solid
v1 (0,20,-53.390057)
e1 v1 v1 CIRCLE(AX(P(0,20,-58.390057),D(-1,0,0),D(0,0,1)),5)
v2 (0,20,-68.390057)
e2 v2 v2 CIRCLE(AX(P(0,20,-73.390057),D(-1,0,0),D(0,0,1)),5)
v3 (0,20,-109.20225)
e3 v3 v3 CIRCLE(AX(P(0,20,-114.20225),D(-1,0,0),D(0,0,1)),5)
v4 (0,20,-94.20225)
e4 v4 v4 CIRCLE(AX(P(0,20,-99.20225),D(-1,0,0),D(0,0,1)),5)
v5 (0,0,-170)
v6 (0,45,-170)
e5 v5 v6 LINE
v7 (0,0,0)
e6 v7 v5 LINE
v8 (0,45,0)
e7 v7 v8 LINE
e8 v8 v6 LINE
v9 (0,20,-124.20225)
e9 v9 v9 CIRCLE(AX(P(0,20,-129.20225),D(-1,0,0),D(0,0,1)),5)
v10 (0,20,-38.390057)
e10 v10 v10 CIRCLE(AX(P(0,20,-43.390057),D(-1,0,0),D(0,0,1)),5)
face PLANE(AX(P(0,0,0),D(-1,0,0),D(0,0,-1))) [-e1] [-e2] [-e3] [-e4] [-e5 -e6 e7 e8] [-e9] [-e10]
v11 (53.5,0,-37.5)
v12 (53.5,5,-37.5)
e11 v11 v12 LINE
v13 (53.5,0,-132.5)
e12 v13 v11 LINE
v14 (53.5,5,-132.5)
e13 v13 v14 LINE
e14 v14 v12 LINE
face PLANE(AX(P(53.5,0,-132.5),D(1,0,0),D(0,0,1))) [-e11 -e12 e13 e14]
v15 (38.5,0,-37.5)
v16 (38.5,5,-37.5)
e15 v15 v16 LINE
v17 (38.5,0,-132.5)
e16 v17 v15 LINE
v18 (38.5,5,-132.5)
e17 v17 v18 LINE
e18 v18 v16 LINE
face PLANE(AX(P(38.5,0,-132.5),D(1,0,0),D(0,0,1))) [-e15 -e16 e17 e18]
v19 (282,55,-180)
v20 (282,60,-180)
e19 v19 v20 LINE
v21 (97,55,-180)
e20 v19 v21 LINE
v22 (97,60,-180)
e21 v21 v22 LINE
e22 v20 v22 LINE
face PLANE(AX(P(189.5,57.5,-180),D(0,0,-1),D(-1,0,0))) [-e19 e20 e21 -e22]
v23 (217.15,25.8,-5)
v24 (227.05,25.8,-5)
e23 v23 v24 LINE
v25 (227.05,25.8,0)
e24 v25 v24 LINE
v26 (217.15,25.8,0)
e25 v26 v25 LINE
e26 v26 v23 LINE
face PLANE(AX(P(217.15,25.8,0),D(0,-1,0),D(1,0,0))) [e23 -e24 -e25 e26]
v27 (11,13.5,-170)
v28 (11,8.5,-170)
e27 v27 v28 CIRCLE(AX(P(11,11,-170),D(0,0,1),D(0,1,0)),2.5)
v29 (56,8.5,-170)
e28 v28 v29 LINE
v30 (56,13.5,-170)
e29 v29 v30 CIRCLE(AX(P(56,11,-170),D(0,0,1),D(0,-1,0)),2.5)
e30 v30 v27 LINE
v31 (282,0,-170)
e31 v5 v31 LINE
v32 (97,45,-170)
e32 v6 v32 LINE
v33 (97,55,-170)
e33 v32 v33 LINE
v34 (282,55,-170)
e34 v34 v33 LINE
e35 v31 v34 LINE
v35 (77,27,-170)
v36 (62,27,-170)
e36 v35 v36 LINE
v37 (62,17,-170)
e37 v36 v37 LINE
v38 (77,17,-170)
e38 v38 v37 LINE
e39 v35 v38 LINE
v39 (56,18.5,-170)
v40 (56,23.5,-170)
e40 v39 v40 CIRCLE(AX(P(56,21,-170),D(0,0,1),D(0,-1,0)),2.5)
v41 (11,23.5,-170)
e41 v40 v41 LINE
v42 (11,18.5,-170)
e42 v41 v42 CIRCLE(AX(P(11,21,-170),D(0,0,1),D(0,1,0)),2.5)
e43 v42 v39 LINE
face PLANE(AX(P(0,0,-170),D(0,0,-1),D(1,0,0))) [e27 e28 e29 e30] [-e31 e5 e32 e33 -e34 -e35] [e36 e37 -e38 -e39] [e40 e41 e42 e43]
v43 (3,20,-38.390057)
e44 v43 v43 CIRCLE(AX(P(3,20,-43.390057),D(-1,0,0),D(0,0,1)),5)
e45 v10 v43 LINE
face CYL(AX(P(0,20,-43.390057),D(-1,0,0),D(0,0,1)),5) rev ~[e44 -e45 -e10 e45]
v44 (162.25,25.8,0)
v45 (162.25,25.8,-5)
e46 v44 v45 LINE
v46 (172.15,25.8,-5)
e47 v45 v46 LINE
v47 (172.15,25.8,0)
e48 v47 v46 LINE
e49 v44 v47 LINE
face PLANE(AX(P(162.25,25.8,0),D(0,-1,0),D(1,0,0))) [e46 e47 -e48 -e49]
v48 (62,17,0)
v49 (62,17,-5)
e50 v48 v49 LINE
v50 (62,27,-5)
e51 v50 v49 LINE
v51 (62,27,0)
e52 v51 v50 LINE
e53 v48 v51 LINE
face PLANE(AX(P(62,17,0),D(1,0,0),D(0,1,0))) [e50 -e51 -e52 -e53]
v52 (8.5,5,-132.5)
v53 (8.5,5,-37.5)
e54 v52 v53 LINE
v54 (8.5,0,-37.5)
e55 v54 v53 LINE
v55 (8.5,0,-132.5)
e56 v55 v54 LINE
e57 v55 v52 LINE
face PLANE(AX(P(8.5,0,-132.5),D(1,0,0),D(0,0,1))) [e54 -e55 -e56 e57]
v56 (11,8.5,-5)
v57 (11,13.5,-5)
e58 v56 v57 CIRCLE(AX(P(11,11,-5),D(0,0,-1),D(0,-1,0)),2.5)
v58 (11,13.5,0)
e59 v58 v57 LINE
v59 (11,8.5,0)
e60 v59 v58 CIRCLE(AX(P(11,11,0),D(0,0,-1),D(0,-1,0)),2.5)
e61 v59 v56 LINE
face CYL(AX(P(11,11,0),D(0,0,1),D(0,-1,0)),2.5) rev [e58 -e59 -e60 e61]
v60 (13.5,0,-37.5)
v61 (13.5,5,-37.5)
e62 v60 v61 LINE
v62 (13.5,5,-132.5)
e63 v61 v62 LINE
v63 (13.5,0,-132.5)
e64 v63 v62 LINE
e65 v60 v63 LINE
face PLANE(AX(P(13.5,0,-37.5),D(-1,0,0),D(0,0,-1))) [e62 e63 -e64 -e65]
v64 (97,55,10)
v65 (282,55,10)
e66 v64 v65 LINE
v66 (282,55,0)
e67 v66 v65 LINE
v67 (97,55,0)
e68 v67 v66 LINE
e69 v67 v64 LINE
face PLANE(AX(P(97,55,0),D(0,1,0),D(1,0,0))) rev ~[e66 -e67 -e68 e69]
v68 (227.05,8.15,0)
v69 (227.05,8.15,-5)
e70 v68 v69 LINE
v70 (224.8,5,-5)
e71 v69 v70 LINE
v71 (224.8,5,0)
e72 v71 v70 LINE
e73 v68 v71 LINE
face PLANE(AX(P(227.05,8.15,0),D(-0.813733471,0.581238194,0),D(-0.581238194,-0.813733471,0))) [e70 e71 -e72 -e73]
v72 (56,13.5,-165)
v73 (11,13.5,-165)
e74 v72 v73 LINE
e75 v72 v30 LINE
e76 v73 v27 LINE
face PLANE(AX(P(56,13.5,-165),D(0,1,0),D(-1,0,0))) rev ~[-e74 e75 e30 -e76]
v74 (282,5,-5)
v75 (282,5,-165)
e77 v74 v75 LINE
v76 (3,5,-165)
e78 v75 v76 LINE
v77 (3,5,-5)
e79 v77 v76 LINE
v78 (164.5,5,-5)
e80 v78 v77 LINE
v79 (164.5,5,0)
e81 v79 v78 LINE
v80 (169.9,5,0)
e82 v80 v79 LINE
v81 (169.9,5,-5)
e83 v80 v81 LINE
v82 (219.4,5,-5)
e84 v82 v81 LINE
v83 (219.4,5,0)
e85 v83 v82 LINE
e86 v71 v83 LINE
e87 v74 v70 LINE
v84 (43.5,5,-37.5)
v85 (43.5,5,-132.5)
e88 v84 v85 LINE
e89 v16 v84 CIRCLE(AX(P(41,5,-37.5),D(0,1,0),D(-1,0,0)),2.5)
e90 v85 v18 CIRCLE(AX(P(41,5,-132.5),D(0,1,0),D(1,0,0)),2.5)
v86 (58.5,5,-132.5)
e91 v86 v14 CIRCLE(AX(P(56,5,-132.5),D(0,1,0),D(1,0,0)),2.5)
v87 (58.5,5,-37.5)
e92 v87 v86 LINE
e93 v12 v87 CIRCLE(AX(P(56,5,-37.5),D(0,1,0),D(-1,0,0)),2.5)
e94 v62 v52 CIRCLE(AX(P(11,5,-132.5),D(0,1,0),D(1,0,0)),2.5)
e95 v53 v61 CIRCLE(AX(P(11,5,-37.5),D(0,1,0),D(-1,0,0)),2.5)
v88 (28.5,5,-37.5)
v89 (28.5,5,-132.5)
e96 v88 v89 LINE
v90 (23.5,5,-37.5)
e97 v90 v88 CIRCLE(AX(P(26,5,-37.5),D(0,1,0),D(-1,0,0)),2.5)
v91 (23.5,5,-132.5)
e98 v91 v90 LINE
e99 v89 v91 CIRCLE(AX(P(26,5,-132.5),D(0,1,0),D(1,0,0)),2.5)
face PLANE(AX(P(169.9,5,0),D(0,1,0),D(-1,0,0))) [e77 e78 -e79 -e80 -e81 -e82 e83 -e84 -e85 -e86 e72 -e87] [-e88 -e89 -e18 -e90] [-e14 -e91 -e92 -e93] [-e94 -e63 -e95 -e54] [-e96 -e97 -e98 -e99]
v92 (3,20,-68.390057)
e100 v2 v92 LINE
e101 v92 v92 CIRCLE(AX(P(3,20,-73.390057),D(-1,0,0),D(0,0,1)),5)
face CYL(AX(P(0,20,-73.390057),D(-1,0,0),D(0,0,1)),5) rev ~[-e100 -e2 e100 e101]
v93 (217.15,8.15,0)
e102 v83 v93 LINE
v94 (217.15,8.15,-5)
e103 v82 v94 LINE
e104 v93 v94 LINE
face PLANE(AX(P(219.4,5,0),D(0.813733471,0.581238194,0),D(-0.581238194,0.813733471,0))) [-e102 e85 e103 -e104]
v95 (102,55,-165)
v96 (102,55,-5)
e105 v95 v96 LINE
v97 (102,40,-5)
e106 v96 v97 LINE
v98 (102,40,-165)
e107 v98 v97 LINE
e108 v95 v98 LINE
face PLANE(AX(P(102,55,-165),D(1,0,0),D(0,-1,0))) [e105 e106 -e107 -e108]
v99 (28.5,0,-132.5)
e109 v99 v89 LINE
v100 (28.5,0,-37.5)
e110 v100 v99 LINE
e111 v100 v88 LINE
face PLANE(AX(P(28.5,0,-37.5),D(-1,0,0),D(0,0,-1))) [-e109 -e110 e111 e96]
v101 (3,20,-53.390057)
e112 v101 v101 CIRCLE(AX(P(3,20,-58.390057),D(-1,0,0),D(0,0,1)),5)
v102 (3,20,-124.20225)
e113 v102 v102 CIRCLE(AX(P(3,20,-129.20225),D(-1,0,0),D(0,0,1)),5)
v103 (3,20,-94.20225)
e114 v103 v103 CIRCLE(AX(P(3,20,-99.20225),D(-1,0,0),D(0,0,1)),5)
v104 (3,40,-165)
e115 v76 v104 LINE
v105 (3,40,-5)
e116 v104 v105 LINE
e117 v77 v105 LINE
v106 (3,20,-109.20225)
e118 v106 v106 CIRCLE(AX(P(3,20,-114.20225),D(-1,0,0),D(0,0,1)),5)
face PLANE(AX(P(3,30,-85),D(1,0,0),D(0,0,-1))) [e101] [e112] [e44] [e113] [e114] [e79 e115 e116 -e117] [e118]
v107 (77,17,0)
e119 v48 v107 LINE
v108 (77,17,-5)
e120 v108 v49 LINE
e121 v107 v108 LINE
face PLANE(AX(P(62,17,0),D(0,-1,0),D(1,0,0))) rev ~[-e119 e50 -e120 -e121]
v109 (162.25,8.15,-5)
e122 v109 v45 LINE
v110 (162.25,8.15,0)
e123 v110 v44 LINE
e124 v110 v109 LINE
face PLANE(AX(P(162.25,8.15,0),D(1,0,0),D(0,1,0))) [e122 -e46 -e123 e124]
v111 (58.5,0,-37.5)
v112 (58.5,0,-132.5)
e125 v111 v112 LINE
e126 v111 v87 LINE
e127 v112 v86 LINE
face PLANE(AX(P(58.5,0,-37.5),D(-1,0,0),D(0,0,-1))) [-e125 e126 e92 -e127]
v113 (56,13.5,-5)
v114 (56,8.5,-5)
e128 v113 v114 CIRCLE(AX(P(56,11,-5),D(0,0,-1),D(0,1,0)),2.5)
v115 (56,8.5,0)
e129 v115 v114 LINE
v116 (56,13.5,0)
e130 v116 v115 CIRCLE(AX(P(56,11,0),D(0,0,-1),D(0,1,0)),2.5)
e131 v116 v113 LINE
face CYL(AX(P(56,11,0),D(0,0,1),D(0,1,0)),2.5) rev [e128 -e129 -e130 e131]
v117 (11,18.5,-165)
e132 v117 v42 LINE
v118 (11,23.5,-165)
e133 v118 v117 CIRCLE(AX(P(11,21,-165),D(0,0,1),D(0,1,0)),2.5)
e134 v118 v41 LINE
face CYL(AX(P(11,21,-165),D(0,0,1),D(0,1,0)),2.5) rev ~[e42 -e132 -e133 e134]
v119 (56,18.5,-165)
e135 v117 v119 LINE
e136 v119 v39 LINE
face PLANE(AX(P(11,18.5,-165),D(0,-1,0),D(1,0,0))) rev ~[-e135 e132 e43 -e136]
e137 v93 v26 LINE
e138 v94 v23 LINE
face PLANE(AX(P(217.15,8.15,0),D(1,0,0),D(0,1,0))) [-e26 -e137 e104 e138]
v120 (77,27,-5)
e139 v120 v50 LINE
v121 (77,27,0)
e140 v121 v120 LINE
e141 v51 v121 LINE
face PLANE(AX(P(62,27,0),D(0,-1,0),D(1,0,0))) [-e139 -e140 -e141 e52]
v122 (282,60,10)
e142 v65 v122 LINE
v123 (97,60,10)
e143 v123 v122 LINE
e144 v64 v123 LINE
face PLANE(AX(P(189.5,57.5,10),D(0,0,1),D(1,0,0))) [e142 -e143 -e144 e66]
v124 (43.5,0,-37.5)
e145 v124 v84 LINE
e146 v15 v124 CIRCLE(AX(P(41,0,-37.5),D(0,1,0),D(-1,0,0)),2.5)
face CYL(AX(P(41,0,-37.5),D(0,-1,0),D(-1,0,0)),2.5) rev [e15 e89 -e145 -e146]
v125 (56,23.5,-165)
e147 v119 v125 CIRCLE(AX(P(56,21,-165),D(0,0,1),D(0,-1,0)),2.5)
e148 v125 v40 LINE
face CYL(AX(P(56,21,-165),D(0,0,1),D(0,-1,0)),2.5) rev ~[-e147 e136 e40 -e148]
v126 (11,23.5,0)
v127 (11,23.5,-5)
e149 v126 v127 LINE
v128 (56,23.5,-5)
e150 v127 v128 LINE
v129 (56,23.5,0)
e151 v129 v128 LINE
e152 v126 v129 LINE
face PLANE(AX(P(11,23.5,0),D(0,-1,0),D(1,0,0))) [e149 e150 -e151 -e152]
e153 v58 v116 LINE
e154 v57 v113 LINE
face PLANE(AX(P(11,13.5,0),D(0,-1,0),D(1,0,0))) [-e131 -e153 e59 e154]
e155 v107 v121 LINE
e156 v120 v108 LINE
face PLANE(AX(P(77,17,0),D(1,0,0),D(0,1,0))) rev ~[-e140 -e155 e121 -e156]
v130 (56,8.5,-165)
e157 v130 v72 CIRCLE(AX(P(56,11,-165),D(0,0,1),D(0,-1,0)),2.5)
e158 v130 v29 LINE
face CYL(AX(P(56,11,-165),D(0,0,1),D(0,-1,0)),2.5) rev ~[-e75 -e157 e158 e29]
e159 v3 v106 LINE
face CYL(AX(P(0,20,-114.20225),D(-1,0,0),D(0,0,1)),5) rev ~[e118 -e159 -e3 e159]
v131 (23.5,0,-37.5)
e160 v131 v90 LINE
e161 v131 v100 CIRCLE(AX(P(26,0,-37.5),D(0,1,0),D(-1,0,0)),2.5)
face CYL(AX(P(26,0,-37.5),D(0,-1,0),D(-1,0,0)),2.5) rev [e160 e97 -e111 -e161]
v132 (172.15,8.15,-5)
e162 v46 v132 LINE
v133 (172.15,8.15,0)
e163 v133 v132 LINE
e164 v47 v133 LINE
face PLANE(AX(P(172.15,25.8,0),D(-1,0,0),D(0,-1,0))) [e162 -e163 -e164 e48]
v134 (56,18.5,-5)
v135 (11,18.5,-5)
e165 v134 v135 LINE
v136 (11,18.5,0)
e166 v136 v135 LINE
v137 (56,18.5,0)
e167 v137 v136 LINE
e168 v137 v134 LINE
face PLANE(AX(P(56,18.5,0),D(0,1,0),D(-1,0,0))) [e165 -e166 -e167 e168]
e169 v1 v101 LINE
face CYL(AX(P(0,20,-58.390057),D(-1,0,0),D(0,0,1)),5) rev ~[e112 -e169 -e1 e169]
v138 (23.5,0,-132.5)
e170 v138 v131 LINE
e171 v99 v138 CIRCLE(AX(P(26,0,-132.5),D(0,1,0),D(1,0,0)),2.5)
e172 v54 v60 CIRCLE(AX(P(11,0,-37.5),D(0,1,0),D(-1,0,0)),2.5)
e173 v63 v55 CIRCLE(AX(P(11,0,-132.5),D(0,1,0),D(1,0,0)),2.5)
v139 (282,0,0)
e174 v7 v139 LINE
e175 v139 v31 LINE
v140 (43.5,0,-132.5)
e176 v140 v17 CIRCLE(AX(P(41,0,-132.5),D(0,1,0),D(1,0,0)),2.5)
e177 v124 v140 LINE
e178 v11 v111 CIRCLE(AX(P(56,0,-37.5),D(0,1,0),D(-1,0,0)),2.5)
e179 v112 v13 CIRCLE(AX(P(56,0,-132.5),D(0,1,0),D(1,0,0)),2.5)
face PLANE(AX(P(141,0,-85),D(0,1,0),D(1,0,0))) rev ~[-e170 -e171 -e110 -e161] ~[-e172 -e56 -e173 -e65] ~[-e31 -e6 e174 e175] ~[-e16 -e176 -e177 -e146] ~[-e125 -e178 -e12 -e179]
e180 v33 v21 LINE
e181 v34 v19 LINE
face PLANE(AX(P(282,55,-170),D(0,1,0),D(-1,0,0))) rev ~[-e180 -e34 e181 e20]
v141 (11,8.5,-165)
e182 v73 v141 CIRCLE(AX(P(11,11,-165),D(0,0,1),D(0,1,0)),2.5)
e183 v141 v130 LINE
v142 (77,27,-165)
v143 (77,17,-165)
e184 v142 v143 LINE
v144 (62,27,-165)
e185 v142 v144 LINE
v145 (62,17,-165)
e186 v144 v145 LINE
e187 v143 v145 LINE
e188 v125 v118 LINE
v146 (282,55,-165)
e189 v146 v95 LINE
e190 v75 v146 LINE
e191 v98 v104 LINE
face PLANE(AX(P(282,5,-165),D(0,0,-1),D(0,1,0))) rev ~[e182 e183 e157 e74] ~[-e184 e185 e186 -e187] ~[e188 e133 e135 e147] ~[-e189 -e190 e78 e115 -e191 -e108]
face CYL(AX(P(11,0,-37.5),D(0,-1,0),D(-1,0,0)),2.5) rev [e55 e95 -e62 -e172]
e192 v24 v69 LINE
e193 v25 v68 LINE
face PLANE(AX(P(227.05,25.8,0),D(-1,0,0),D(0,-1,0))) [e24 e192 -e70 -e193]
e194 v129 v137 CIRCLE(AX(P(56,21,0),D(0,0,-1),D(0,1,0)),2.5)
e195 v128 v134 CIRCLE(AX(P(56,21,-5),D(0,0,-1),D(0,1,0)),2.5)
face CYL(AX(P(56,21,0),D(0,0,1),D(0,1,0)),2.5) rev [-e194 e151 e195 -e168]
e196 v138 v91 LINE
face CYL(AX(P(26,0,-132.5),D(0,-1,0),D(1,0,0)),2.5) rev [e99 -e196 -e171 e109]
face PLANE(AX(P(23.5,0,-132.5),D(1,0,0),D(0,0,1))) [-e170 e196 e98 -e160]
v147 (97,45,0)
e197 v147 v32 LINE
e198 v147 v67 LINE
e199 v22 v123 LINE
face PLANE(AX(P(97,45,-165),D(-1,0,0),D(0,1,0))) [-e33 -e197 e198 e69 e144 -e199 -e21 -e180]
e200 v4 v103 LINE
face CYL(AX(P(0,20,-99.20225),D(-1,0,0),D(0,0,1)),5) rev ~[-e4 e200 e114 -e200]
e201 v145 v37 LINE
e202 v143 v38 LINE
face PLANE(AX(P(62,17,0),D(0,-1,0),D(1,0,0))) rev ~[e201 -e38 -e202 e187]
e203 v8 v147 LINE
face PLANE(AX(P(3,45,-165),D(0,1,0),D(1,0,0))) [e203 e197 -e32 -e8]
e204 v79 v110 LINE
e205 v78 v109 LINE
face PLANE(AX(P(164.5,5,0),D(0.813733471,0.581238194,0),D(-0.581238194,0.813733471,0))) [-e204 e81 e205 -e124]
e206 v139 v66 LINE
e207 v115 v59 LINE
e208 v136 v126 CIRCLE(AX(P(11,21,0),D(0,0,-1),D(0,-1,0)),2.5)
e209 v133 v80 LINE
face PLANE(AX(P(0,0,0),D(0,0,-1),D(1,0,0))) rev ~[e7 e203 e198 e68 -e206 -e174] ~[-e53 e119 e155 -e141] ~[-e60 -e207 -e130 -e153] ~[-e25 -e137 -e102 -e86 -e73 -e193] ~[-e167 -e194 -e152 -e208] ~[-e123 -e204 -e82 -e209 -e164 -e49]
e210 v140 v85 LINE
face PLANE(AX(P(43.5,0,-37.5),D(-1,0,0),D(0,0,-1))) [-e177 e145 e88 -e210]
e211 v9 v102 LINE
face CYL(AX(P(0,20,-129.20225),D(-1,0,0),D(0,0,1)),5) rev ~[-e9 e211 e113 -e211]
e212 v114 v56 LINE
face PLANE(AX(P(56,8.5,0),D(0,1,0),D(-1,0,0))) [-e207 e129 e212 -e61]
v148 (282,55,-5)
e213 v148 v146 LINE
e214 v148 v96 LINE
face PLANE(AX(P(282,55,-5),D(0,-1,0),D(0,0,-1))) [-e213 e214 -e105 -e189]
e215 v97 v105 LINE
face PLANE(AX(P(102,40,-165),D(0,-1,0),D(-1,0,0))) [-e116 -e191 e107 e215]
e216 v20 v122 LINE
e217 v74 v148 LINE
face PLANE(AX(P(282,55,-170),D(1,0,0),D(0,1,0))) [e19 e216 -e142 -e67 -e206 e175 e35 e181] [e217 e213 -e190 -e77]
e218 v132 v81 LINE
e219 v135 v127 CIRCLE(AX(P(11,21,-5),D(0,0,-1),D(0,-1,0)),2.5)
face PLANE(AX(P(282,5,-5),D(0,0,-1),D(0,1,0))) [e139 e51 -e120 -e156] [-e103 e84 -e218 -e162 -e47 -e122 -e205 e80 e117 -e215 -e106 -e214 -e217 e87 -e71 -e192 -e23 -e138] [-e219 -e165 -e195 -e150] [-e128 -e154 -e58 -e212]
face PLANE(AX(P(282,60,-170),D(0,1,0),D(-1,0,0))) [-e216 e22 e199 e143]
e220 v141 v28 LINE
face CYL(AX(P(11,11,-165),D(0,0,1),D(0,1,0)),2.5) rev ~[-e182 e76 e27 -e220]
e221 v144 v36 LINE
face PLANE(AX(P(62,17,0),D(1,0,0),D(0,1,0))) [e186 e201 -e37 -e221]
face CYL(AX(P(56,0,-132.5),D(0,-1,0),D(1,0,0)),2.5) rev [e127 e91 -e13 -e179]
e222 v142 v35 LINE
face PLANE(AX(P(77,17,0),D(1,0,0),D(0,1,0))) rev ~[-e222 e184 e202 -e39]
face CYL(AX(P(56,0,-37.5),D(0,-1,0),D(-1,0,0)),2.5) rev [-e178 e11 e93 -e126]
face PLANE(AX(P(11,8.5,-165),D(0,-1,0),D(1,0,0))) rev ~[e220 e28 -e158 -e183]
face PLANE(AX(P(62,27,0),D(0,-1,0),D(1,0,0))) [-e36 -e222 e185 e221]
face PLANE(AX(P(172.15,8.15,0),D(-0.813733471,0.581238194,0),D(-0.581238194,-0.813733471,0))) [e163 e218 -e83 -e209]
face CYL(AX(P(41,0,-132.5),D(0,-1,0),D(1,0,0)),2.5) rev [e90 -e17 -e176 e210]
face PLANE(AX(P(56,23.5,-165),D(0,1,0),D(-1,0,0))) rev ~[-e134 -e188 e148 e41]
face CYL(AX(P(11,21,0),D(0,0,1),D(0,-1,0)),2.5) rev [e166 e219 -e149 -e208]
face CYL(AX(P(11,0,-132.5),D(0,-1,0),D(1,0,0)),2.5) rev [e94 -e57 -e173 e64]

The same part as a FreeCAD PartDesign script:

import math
import FreeCAD as App
import Part
import Sketcher
from FreeCAD import Vector
Q = App.Units.Quantity

doc = App.newDocument("Part")
body = doc.addObject("PartDesign::Body", "Body")

sketch1 = body.newObject("Sketcher::SketchObject", "Sketch")
sketch1.AttachmentSupport = (doc.getObject("XZ_Plane"), [""])
sketch1.MapMode = "FlatFace"
sketch1.addGeometry(Part.LineSegment(Vector(0, -170, 0), Vector(0, 0, 0)), False)
sketch1.addGeometry(Part.LineSegment(Vector(0, 0, 0), Vector(282, 0, 0)), False)
sketch1.addGeometry(Part.LineSegment(Vector(282, 0, 0), Vector(282, -170, 0)), False)
sketch1.addGeometry(Part.LineSegment(Vector(282, -170, 0), Vector(0, -170, 0)), False)
sketch1.addConstraint(Sketcher.Constraint("Coincident", 0, 2, 1, 1))
sketch1.addConstraint(Sketcher.Constraint("Coincident", 1, 2, 2, 1))
sketch1.addConstraint(Sketcher.Constraint("Coincident", 2, 2, 3, 1))
sketch1.addConstraint(Sketcher.Constraint("Coincident", 3, 2, 0, 1))
sketch1.addConstraint(Sketcher.Constraint("Vertical", 0))
sketch1.addConstraint(Sketcher.Constraint("Horizontal", 1))
sketch1.addConstraint(Sketcher.Constraint("Vertical", 2))
sketch1.addConstraint(Sketcher.Constraint("Horizontal", 3))
sketch1.addConstraint(Sketcher.Constraint("Coincident", 0, 2, -1, 1))
sketch1.addConstraint(Sketcher.Constraint("DistanceX", 1, 1, 1, 2, Q("282 mm")))
sketch1.addConstraint(Sketcher.Constraint("DistanceY", 0, 1, 0, 2, Q("170 mm")))
pad1 = body.newObject("PartDesign::Pad", "Pad")
pad1.Profile = sketch1
pad1.Length = 60
pad1.Reversed = True

sketch2 = body.newObject("Sketcher::SketchObject", "Sketch001")
sketch2.AttachmentSupport = (doc.getObject("XZ_Plane"), [""])
sketch2.MapMode = "FlatFace"
sketch2.addGeometry(Part.LineSegment(Vector(13.5, -132.5, 0), Vector(13.5, -37.5, 0)), False)
sketch2.addGeometry(Part.ArcOfCircle(Part.Circle(Vector(11, -37.5, 0), Vector(0, 0, 1), 2.5), math.radians(0), math.radians(180)), False)
sketch2.addGeometry(Part.LineSegment(Vector(8.5, -37.5, 0), Vector(8.5, -132.5, 0)), False)
sketch2.addGeometry(Part.ArcOfCircle(Part.Circle(Vector(11, -132.5, 0), Vector(0, 0, 1), 2.5), math.radians(180), math.radians(360)), False)
sketch2.addGeometry(Part.LineSegment(Vector(58.5, -132.5, 0), Vector(58.5, -37.5, 0)), False)
sketch2.addGeometry(Part.ArcOfCircle(Part.Circle(Vector(56, -37.5, 0), Vector(0, 0, 1), 2.5), math.radians(0), math.radians(180)), False)
sketch2.addGeometry(Part.LineSegment(Vector(53.5, -37.5, 0), Vector(53.5, -132.5, 0)), False)
sketch2.addGeometry(Part.ArcOfCircle(Part.Circle(Vector(56, -132.5, 0), Vector(0, 0, 1), 2.5), math.radians(180), math.radians(360)), False)
sketch2.addGeometry(Part.LineSegment(Vector(28.5, -132.5, 0), Vector(28.5, -37.5, 0)), False)
sketch2.addGeometry(Part.ArcOfCircle(Part.Circle(Vector(26, -37.5, 0), Vector(0, 0, 1), 2.5), math.radians(0), math.radians(180)), False)
sketch2.addGeometry(Part.LineSegment(Vector(23.5, -37.5, 0), Vector(23.5, -132.5, 0)), False)
sketch2.addGeometry(Part.ArcOfCircle(Part.Circle(Vector(26, -132.5, 0), Vector(0, 0, 1), 2.5), math.radians(180), math.radians(360)), False)
sketch2.addGeometry(Part.LineSegment(Vector(43.5, -132.5, 0), Vector(43.5, -37.5, 0)), False)
sketch2.addGeometry(Part.ArcOfCircle(Part.Circle(Vector(41, -37.5, 0), Vector(0, 0, 1), 2.5), math.radians(0), math.radians(180)), False)
sketch2.addGeometry(Part.LineSegment(Vector(38.5, -37.5, 0), Vector(38.5, -132.5, 0)), False)
sketch2.addGeometry(Part.ArcOfCircle(Part.Circle(Vector(41, -132.5, 0), Vector(0, 0, 1), 2.5), math.radians(180), math.radians(360)), False)
sketch2.addConstraint(Sketcher.Constraint("Tangent", 0, 2, 1, 1))
sketch2.addConstraint(Sketcher.Constraint("Tangent", 1, 2, 2, 1))
sketch2.addConstraint(Sketcher.Constraint("Tangent", 2, 2, 3, 1))
sketch2.addConstraint(Sketcher.Constraint("Tangent", 3, 2, 0, 1))
sketch2.addConstraint(Sketcher.Constraint("Tangent", 4, 2, 5, 1))
sketch2.addConstraint(Sketcher.Constraint("Tangent", 5, 2, 6, 1))
sketch2.addConstraint(Sketcher.Constraint("Tangent", 6, 2, 7, 1))
sketch2.addConstraint(Sketcher.Constraint("Tangent", 7, 2, 4, 1))
sketch2.addConstraint(Sketcher.Constraint("Tangent", 8, 2, 9, 1))
sketch2.addConstraint(Sketcher.Constraint("Tangent", 9, 2, 10, 1))
sketch2.addConstraint(Sketcher.Constraint("Tangent", 10, 2, 11, 1))
sketch2.addConstraint(Sketcher.Constraint("Tangent", 11, 2, 8, 1))
sketch2.addConstraint(Sketcher.Constraint("Tangent", 12, 2, 13, 1))
sketch2.addConstraint(Sketcher.Constraint("Tangent", 13, 2, 14, 1))
sketch2.addConstraint(Sketcher.Constraint("Tangent", 14, 2, 15, 1))
sketch2.addConstraint(Sketcher.Constraint("Tangent", 15, 2, 12, 1))
sketch2.addConstraint(Sketcher.Constraint("Vertical", 0))
sketch2.addConstraint(Sketcher.Constraint("Vertical", 2))
sketch2.addConstraint(Sketcher.Constraint("Vertical", 4))
sketch2.addConstraint(Sketcher.Constraint("Vertical", 6))
sketch2.addConstraint(Sketcher.Constraint("Vertical", 8))
sketch2.addConstraint(Sketcher.Constraint("Vertical", 10))
sketch2.addConstraint(Sketcher.Constraint("Vertical", 12))
sketch2.addConstraint(Sketcher.Constraint("Vertical", 14))
sketch2.addConstraint(Sketcher.Constraint("Equal", 3, 5))
sketch2.addConstraint(Sketcher.Constraint("Equal", 7, 9))
sketch2.addConstraint(Sketcher.Constraint("Equal", 11, 13))
sketch2.addConstraint(Sketcher.Constraint("Horizontal", 1, 3, 5, 3))
sketch2.addConstraint(Sketcher.Constraint("Horizontal", 3, 3, 7, 3))
sketch2.addConstraint(Sketcher.Constraint("Horizontal", 5, 3, 9, 3))
sketch2.addConstraint(Sketcher.Constraint("Horizontal", 7, 3, 11, 3))
sketch2.addConstraint(Sketcher.Constraint("Horizontal", 9, 3, 13, 3))
sketch2.addConstraint(Sketcher.Constraint("Horizontal", 11, 3, 15, 3))
sketch2.addConstraint(Sketcher.Constraint("Radius", 1, Q("2.5 mm")))
sketch2.addConstraint(Sketcher.Constraint("DistanceY", 0, 1, 0, 2, Q("95 mm")))
sketch2.addConstraint(Sketcher.Constraint("DistanceX", -1, 1, 1, 3, Q("11 mm")))
sketch2.addConstraint(Sketcher.Constraint("DistanceX", -1, 1, 5, 3, Q("56 mm")))
sketch2.addConstraint(Sketcher.Constraint("DistanceX", -1, 1, 9, 3, Q("26 mm")))
sketch2.addConstraint(Sketcher.Constraint("DistanceX", -1, 1, 13, 3, Q("41 mm")))
sketch2.addConstraint(Sketcher.Constraint("DistanceY", 1, 3, -1, 1, Q("37.5 mm")))
pocket1 = body.newObject("PartDesign::Pocket", "Pocket")
pocket1.Profile = sketch2
pocket1.Length = 5

sketch3 = body.newObject("Sketcher::SketchObject", "Sketch002")
sketch3.AttachmentSupport = (doc.getObject("YZ_Plane"), [""])
sketch3.MapMode = "FlatFace"
sketch3.AttachmentOffset = App.Placement(Vector(0, 0, 282), App.Rotation())
sketch3.addGeometry(Part.LineSegment(Vector(55, -5, 0), Vector(5, -5, 0)), False)
sketch3.addGeometry(Part.LineSegment(Vector(5, -5, 0), Vector(5, -165, 0)), False)
sketch3.addGeometry(Part.LineSegment(Vector(5, -165, 0), Vector(55, -165, 0)), False)
sketch3.addGeometry(Part.LineSegment(Vector(55, -165, 0), Vector(55, -5, 0)), False)
sketch3.addConstraint(Sketcher.Constraint("Coincident", 0, 2, 1, 1))
sketch3.addConstraint(Sketcher.Constraint("Coincident", 1, 2, 2, 1))
sketch3.addConstraint(Sketcher.Constraint("Coincident", 2, 2, 3, 1))
sketch3.addConstraint(Sketcher.Constraint("Coincident", 3, 2, 0, 1))
sketch3.addConstraint(Sketcher.Constraint("Horizontal", 0))
sketch3.addConstraint(Sketcher.Constraint("Vertical", 1))
sketch3.addConstraint(Sketcher.Constraint("Horizontal", 2))
sketch3.addConstraint(Sketcher.Constraint("Vertical", 3))
sketch3.addConstraint(Sketcher.Constraint("DistanceX", 0, 2, 0, 1, Q("50 mm")))
sketch3.addConstraint(Sketcher.Constraint("DistanceY", 1, 2, 1, 1, Q("160 mm")))
sketch3.addConstraint(Sketcher.Constraint("DistanceX", -1, 1, 0, 2, Q("5 mm")))
sketch3.addConstraint(Sketcher.Constraint("DistanceY", 0, 2, -1, 1, Q("5 mm")))
pocket2 = body.newObject("PartDesign::Pocket", "Pocket001")
pocket2.Profile = sketch3
pocket2.Length = 279

sketch4 = body.newObject("Sketcher::SketchObject", "Sketch003")
sketch4.AttachmentSupport = (doc.getObject("XY_Plane"), [""])
sketch4.MapMode = "FlatFace"
sketch4.addGeometry(Part.LineSegment(Vector(227.1, 25.8, 0), Vector(217.2, 25.8, 0)), False)
sketch4.addGeometry(Part.LineSegment(Vector(217.2, 25.8, 0), Vector(217.2, 8.2, 0)), False)
sketch4.addGeometry(Part.LineSegment(Vector(217.2, 8.2, 0), Vector(219.4, 5, 0)), False)
sketch4.addGeometry(Part.LineSegment(Vector(219.4, 5, 0), Vector(224.8, 5, 0)), False)
sketch4.addGeometry(Part.LineSegment(Vector(224.8, 5, 0), Vector(227.1, 8.2, 0)), False)
sketch4.addGeometry(Part.LineSegment(Vector(227.1, 8.2, 0), Vector(227.1, 25.8, 0)), False)
sketch4.addGeometry(Part.LineSegment(Vector(172.2, 25.8, 0), Vector(162.2, 25.8, 0)), False)
sketch4.addGeometry(Part.LineSegment(Vector(162.2, 25.8, 0), Vector(162.2, 8.2, 0)), False)
sketch4.addGeometry(Part.LineSegment(Vector(162.2, 8.2, 0), Vector(164.5, 5, 0)), False)
sketch4.addGeometry(Part.LineSegment(Vector(164.5, 5, 0), Vector(169.9, 5, 0)), False)
sketch4.addGeometry(Part.LineSegment(Vector(169.9, 5, 0), Vector(172.2, 8.2, 0)), False)
sketch4.addGeometry(Part.LineSegment(Vector(172.2, 8.2, 0), Vector(172.2, 25.8, 0)), False)
sketch4.addConstraint(Sketcher.Constraint("Coincident", 0, 2, 1, 1))
sketch4.addConstraint(Sketcher.Constraint("Coincident", 1, 2, 2, 1))
sketch4.addConstraint(Sketcher.Constraint("Coincident", 2, 2, 3, 1))
sketch4.addConstraint(Sketcher.Constraint("Coincident", 3, 2, 4, 1))
sketch4.addConstraint(Sketcher.Constraint("Coincident", 4, 2, 5, 1))
sketch4.addConstraint(Sketcher.Constraint("Coincident", 5, 2, 0, 1))
sketch4.addConstraint(Sketcher.Constraint("Coincident", 6, 2, 7, 1))
sketch4.addConstraint(Sketcher.Constraint("Coincident", 7, 2, 8, 1))
sketch4.addConstraint(Sketcher.Constraint("Coincident", 8, 2, 9, 1))
sketch4.addConstraint(Sketcher.Constraint("Coincident", 9, 2, 10, 1))
sketch4.addConstraint(Sketcher.Constraint("Coincident", 10, 2, 11, 1))
sketch4.addConstraint(Sketcher.Constraint("Coincident", 11, 2, 6, 1))
sketch4.addConstraint(Sketcher.Constraint("Horizontal", 0))
sketch4.addConstraint(Sketcher.Constraint("Vertical", 1))
sketch4.addConstraint(Sketcher.Constraint("Horizontal", 3))
sketch4.addConstraint(Sketcher.Constraint("Vertical", 5))
sketch4.addConstraint(Sketcher.Constraint("Horizontal", 6))
sketch4.addConstraint(Sketcher.Constraint("Vertical", 7))
sketch4.addConstraint(Sketcher.Constraint("Horizontal", 9))
sketch4.addConstraint(Sketcher.Constraint("Vertical", 11))
sketch4.addConstraint(Sketcher.Constraint("Parallel", 2, 8))
sketch4.addConstraint(Sketcher.Constraint("Parallel", 4, 10))
sketch4.addConstraint(Sketcher.Constraint("Horizontal", 1, 2, 4, 2))
sketch4.addConstraint(Sketcher.Constraint("Horizontal", 5, 2, 6, 2))
sketch4.addConstraint(Sketcher.Constraint("Horizontal", 4, 2, 7, 2))
sketch4.addConstraint(Sketcher.Constraint("Horizontal", 3, 2, 8, 2))
sketch4.addConstraint(Sketcher.Constraint("Horizontal", 7, 2, 10, 2))
sketch4.addConstraint(Sketcher.Constraint("Equal", 0, 6))
sketch4.addConstraint(Sketcher.Constraint("Equal", 2, 4))
sketch4.addConstraint(Sketcher.Constraint("DistanceX", 0, 2, 0, 1, Q("9.9 mm")))
sketch4.addConstraint(Sketcher.Constraint("DistanceX", 3, 1, 3, 2, Q("5.4 mm")))
sketch4.addConstraint(Sketcher.Constraint("DistanceY", -1, 1, 2, 2, Q("5 mm")))
sketch4.addConstraint(Sketcher.Constraint("DistanceX", 10, 2, 1, 2, Q("45 mm")))
sketch4.addConstraint(Sketcher.Constraint("DistanceY", 1, 2, 1, 1, Q("17.65 mm")))
sketch4.addConstraint(Sketcher.Constraint("DistanceY", -1, 1, 0, 2, Q("25.8 mm")))
sketch4.addConstraint(Sketcher.Constraint("DistanceX", -1, 1, 2, 2, Q("219.4 mm")))
pocket3 = body.newObject("PartDesign::Pocket", "Pocket002")
pocket3.Profile = sketch4
pocket3.Length = 5

sketch5 = body.newObject("Sketcher::SketchObject", "Sketch004")
sketch5.AttachmentSupport = (doc.getObject("YZ_Plane"), [""])
sketch5.MapMode = "FlatFace"
sketch5.addGeometry(Part.Circle(Vector(20, -129, 0), Vector(0, 0, 1), 5), False)
sketch5.addGeometry(Part.Circle(Vector(20, -114, 0), Vector(0, 0, 1), 5), False)
sketch5.addGeometry(Part.Circle(Vector(20, -99, 0), Vector(0, 0, 1), 5), False)
sketch5.addGeometry(Part.Circle(Vector(20, -43, 0), Vector(0, 0, 1), 5), False)
sketch5.addGeometry(Part.Circle(Vector(20, -58, 0), Vector(0, 0, 1), 5), False)
sketch5.addGeometry(Part.Circle(Vector(20, -73, 0), Vector(0, 0, 1), 5), False)
sketch5.addConstraint(Sketcher.Constraint("Equal", 0, 1))
sketch5.addConstraint(Sketcher.Constraint("Equal", 1, 2))
sketch5.addConstraint(Sketcher.Constraint("Equal", 2, 3))
sketch5.addConstraint(Sketcher.Constraint("Equal", 3, 4))
sketch5.addConstraint(Sketcher.Constraint("Equal", 4, 5))
sketch5.addConstraint(Sketcher.Constraint("Vertical", 0, 3, 1, 3))
sketch5.addConstraint(Sketcher.Constraint("Vertical", 1, 3, 2, 3))
sketch5.addConstraint(Sketcher.Constraint("Vertical", 2, 3, 3, 3))
sketch5.addConstraint(Sketcher.Constraint("Vertical", 3, 3, 4, 3))
sketch5.addConstraint(Sketcher.Constraint("Vertical", 4, 3, 5, 3))
sketch5.addConstraint(Sketcher.Constraint("Diameter", 0, Q("10 mm")))
sketch5.addConstraint(Sketcher.Constraint("DistanceX", -1, 1, 0, 3, Q("20 mm")))
sketch5.addConstraint(Sketcher.Constraint("DistanceY", 0, 3, 1, 3, Q("15 mm")))
sketch5.addConstraint(Sketcher.Constraint("DistanceY", 1, 3, 2, 3, Q("15 mm")))
sketch5.addConstraint(Sketcher.Constraint("DistanceY", 4, 3, 3, 3, Q("15 mm")))
sketch5.addConstraint(Sketcher.Constraint("DistanceY", 5, 3, 4, 3, Q("15 mm")))
sketch5.addConstraint(Sketcher.Constraint("DistanceY", 0, 3, -1, 1, Q("129.20225 mm")))
sketch5.addConstraint(Sketcher.Constraint("DistanceY", 3, 3, -1, 1, Q("43.390057 mm")))
pocket4 = body.newObject("PartDesign::Pocket", "Pocket003")
pocket4.Profile = sketch5
pocket4.Length = 5
pocket4.Reversed = True

sketch6 = body.newObject("Sketcher::SketchObject", "Sketch005")
sketch6.AttachmentSupport = (doc.getObject("XY_Plane"), [""])
sketch6.MapMode = "FlatFace"
sketch6.addGeometry(Part.LineSegment(Vector(56, 13.5, 0), Vector(11, 13.5, 0)), False)
sketch6.addGeometry(Part.ArcOfCircle(Part.Circle(Vector(11, 11, 0), Vector(0, 0, 1), 2.5), math.radians(90), math.radians(270)), False)
sketch6.addGeometry(Part.LineSegment(Vector(11, 8.5, 0), Vector(56, 8.5, 0)), False)
sketch6.addGeometry(Part.ArcOfCircle(Part.Circle(Vector(56, 11, 0), Vector(0, 0, 1), 2.5), math.radians(-90), math.radians(90)), False)
sketch6.addGeometry(Part.LineSegment(Vector(56, 23.5, 0), Vector(11, 23.5, 0)), False)
sketch6.addGeometry(Part.ArcOfCircle(Part.Circle(Vector(11, 21, 0), Vector(0, 0, 1), 2.5), math.radians(90), math.radians(270)), False)
sketch6.addGeometry(Part.LineSegment(Vector(11, 18.5, 0), Vector(56, 18.5, 0)), False)
sketch6.addGeometry(Part.ArcOfCircle(Part.Circle(Vector(56, 21, 0), Vector(0, 0, 1), 2.5), math.radians(-90), math.radians(90)), False)
sketch6.addConstraint(Sketcher.Constraint("Tangent", 0, 2, 1, 1))
sketch6.addConstraint(Sketcher.Constraint("Tangent", 1, 2, 2, 1))
sketch6.addConstraint(Sketcher.Constraint("Tangent", 2, 2, 3, 1))
sketch6.addConstraint(Sketcher.Constraint("Tangent", 3, 2, 0, 1))
sketch6.addConstraint(Sketcher.Constraint("Tangent", 4, 2, 5, 1))
sketch6.addConstraint(Sketcher.Constraint("Tangent", 5, 2, 6, 1))
sketch6.addConstraint(Sketcher.Constraint("Tangent", 6, 2, 7, 1))
sketch6.addConstraint(Sketcher.Constraint("Tangent", 7, 2, 4, 1))
sketch6.addConstraint(Sketcher.Constraint("Horizontal", 0))
sketch6.addConstraint(Sketcher.Constraint("Horizontal", 2))
sketch6.addConstraint(Sketcher.Constraint("Horizontal", 4))
sketch6.addConstraint(Sketcher.Constraint("Horizontal", 6))
sketch6.addConstraint(Sketcher.Constraint("Equal", 3, 5))
sketch6.addConstraint(Sketcher.Constraint("Vertical", 1, 3, 5, 3))
sketch6.addConstraint(Sketcher.Constraint("Vertical", 3, 3, 7, 3))
sketch6.addConstraint(Sketcher.Constraint("Radius", 1, Q("2.5 mm")))
sketch6.addConstraint(Sketcher.Constraint("DistanceX", 0, 2, 0, 1, Q("45 mm")))
sketch6.addConstraint(Sketcher.Constraint("DistanceX", -1, 1, 1, 3, Q("11 mm")))
sketch6.addConstraint(Sketcher.Constraint("DistanceY", -1, 1, 1, 3, Q("11 mm")))
sketch6.addConstraint(Sketcher.Constraint("DistanceY", -1, 1, 5, 3, Q("21 mm")))
pocket5 = body.newObject("PartDesign::Pocket", "Pocket004")
pocket5.Profile = sketch6
pocket5.Length = 5

sketch7 = body.newObject("Sketcher::SketchObject", "Sketch006")
sketch7.AttachmentSupport = (doc.getObject("XY_Plane"), [""])
sketch7.MapMode = "FlatFace"
sketch7.AttachmentOffset = App.Placement(Vector(0, 0, -165), App.Rotation())
sketch7.addGeometry(Part.LineSegment(Vector(11, 13.5, 0), Vector(56, 13.5, 0)), False)
sketch7.addGeometry(Part.ArcOfCircle(Part.Circle(Vector(56, 11, 0), Vector(0, 0, 1), 2.5), math.radians(-90), math.radians(90)), False)
sketch7.addGeometry(Part.LineSegment(Vector(56, 8.5, 0), Vector(11, 8.5, 0)), False)
sketch7.addGeometry(Part.ArcOfCircle(Part.Circle(Vector(11, 11, 0), Vector(0, 0, 1), 2.5), math.radians(90), math.radians(270)), False)
sketch7.addGeometry(Part.LineSegment(Vector(11, 23.5, 0), Vector(56, 23.5, 0)), False)
sketch7.addGeometry(Part.ArcOfCircle(Part.Circle(Vector(56, 21, 0), Vector(0, 0, 1), 2.5), math.radians(-90), math.radians(90)), False)
sketch7.addGeometry(Part.LineSegment(Vector(56, 18.5, 0), Vector(11, 18.5, 0)), False)
sketch7.addGeometry(Part.ArcOfCircle(Part.Circle(Vector(11, 21, 0), Vector(0, 0, 1), 2.5), math.radians(90), math.radians(270)), False)
sketch7.addConstraint(Sketcher.Constraint("Tangent", 0, 2, 1, 2))
sketch7.addConstraint(Sketcher.Constraint("Tangent", 1, 1, 2, 1))
sketch7.addConstraint(Sketcher.Constraint("Tangent", 2, 2, 3, 2))
sketch7.addConstraint(Sketcher.Constraint("Tangent", 3, 1, 0, 1))
sketch7.addConstraint(Sketcher.Constraint("Tangent", 4, 2, 5, 2))
sketch7.addConstraint(Sketcher.Constraint("Tangent", 5, 1, 6, 1))
sketch7.addConstraint(Sketcher.Constraint("Tangent", 6, 2, 7, 2))
sketch7.addConstraint(Sketcher.Constraint("Tangent", 7, 1, 4, 1))
sketch7.addConstraint(Sketcher.Constraint("Horizontal", 0))
sketch7.addConstraint(Sketcher.Constraint("Horizontal", 2))
sketch7.addConstraint(Sketcher.Constraint("Horizontal", 4))
sketch7.addConstraint(Sketcher.Constraint("Horizontal", 6))
sketch7.addConstraint(Sketcher.Constraint("Equal", 3, 5))
sketch7.addConstraint(Sketcher.Constraint("Vertical", 1, 3, 5, 3))
sketch7.addConstraint(Sketcher.Constraint("Vertical", 3, 3, 7, 3))
sketch7.addConstraint(Sketcher.Constraint("Radius", 1, Q("2.5 mm")))
sketch7.addConstraint(Sketcher.Constraint("DistanceX", 0, 1, 0, 2, Q("45 mm")))
sketch7.addConstraint(Sketcher.Constraint("DistanceX", -1, 1, 1, 3, Q("56 mm")))
sketch7.addConstraint(Sketcher.Constraint("DistanceY", -1, 1, 1, 3, Q("11 mm")))
sketch7.addConstraint(Sketcher.Constraint("DistanceY", -1, 1, 5, 3, Q("21 mm")))
pocket6 = body.newObject("PartDesign::Pocket", "Pocket005")
pocket6.Profile = sketch7
pocket6.Length = 5

sketch8 = body.newObject("Sketcher::SketchObject", "Sketch007")
sketch8.AttachmentSupport = (doc.getObject("XY_Plane"), [""])
sketch8.MapMode = "FlatFace"
sketch8.addGeometry(Part.LineSegment(Vector(97, 60, 0), Vector(97, 55, 0)), False)
sketch8.addGeometry(Part.LineSegment(Vector(97, 55, 0), Vector(282, 55, 0)), False)
sketch8.addGeometry(Part.LineSegment(Vector(282, 55, 0), Vector(282, 60, 0)), False)
sketch8.addGeometry(Part.LineSegment(Vector(282, 60, 0), Vector(97, 60, 0)), False)
sketch8.addConstraint(Sketcher.Constraint("Coincident", 0, 2, 1, 1))
sketch8.addConstraint(Sketcher.Constraint("Coincident", 1, 2, 2, 1))
sketch8.addConstraint(Sketcher.Constraint("Coincident", 2, 2, 3, 1))
sketch8.addConstraint(Sketcher.Constraint("Coincident", 3, 2, 0, 1))
sketch8.addConstraint(Sketcher.Constraint("Vertical", 0))
sketch8.addConstraint(Sketcher.Constraint("Horizontal", 1))
sketch8.addConstraint(Sketcher.Constraint("Vertical", 2))
sketch8.addConstraint(Sketcher.Constraint("Horizontal", 3))
sketch8.addConstraint(Sketcher.Constraint("DistanceX", 1, 1, 1, 2, Q("185 mm")))
sketch8.addConstraint(Sketcher.Constraint("DistanceY", 0, 2, 0, 1, Q("5 mm")))
sketch8.addConstraint(Sketcher.Constraint("DistanceX", -1, 1, 0, 2, Q("97 mm")))
sketch8.addConstraint(Sketcher.Constraint("DistanceY", -1, 1, 0, 2, Q("55 mm")))
pad2 = body.newObject("PartDesign::Pad", "Pad001")
pad2.Profile = sketch8
pad2.Length = 10

sketch9 = body.newObject("Sketcher::SketchObject", "Sketch008")
sketch9.AttachmentSupport = (doc.getObject("XY_Plane"), [""])
sketch9.MapMode = "FlatFace"
sketch9.AttachmentOffset = App.Placement(Vector(0, 0, -170), App.Rotation())
sketch9.addGeometry(Part.LineSegment(Vector(282, 60, 0), Vector(282, 55, 0)), False)
sketch9.addGeometry(Part.LineSegment(Vector(282, 55, 0), Vector(97, 55, 0)), False)
sketch9.addGeometry(Part.LineSegment(Vector(97, 55, 0), Vector(97, 60, 0)), False)
sketch9.addGeometry(Part.LineSegment(Vector(97, 60, 0), Vector(282, 60, 0)), False)
sketch9.addConstraint(Sketcher.Constraint("Coincident", 0, 2, 1, 1))
sketch9.addConstraint(Sketcher.Constraint("Coincident", 1, 2, 2, 1))
sketch9.addConstraint(Sketcher.Constraint("Coincident", 2, 2, 3, 1))
sketch9.addConstraint(Sketcher.Constraint("Coincident", 3, 2, 0, 1))
sketch9.addConstraint(Sketcher.Constraint("Vertical", 0))
sketch9.addConstraint(Sketcher.Constraint("Horizontal", 1))
sketch9.addConstraint(Sketcher.Constraint("Vertical", 2))
sketch9.addConstraint(Sketcher.Constraint("Horizontal", 3))
sketch9.addConstraint(Sketcher.Constraint("DistanceX", 1, 2, 1, 1, Q("185 mm")))
sketch9.addConstraint(Sketcher.Constraint("DistanceY", 0, 2, 0, 1, Q("5 mm")))
sketch9.addConstraint(Sketcher.Constraint("DistanceX", -1, 1, 0, 2, Q("282 mm")))
sketch9.addConstraint(Sketcher.Constraint("DistanceY", -1, 1, 0, 2, Q("55 mm")))
pad3 = body.newObject("PartDesign::Pad", "Pad002")
pad3.Profile = sketch9
pad3.Length = 10
pad3.Reversed = True

sketch10 = body.newObject("Sketcher::SketchObject", "Sketch009")
sketch10.AttachmentSupport = (doc.getObject("XY_Plane"), [""])
sketch10.MapMode = "FlatFace"
sketch10.addGeometry(Part.LineSegment(Vector(0, 60, 0), Vector(0, 45, 0)), False)
sketch10.addGeometry(Part.LineSegment(Vector(0, 45, 0), Vector(97, 45, 0)), False)
sketch10.addGeometry(Part.LineSegment(Vector(97, 45, 0), Vector(97, 60, 0)), False)
sketch10.addGeometry(Part.LineSegment(Vector(97, 60, 0), Vector(0, 60, 0)), False)
sketch10.addConstraint(Sketcher.Constraint("Coincident", 0, 2, 1, 1))
sketch10.addConstraint(Sketcher.Constraint("Coincident", 1, 2, 2, 1))
sketch10.addConstraint(Sketcher.Constraint("Coincident", 2, 2, 3, 1))
sketch10.addConstraint(Sketcher.Constraint("Coincident", 3, 2, 0, 1))
sketch10.addConstraint(Sketcher.Constraint("Vertical", 0))
sketch10.addConstraint(Sketcher.Constraint("Horizontal", 1))
sketch10.addConstraint(Sketcher.Constraint("Vertical", 2))
sketch10.addConstraint(Sketcher.Constraint("Horizontal", 3))
sketch10.addConstraint(Sketcher.Constraint("PointOnObject", 0, 2, -2))
sketch10.addConstraint(Sketcher.Constraint("DistanceX", 1, 1, 1, 2, Q("97 mm")))
sketch10.addConstraint(Sketcher.Constraint("DistanceY", 0, 2, 0, 1, Q("15 mm")))
sketch10.addConstraint(Sketcher.Constraint("DistanceY", -1, 1, 0, 2, Q("45 mm")))
pocket7 = body.newObject("PartDesign::Pocket", "Pocket006")
pocket7.Profile = sketch10
pocket7.Length = 170

sketch11 = body.newObject("Sketcher::SketchObject", "Sketch010")
sketch11.AttachmentSupport = (doc.getObject("XY_Plane"), [""])
sketch11.MapMode = "FlatFace"
sketch11.AttachmentOffset = App.Placement(Vector(0, 0, -165), App.Rotation())
sketch11.addGeometry(Part.LineSegment(Vector(97, 45, 0), Vector(3, 45, 0)), False)
sketch11.addGeometry(Part.LineSegment(Vector(3, 45, 0), Vector(3, 40, 0)), False)
sketch11.addGeometry(Part.LineSegment(Vector(3, 40, 0), Vector(102, 40, 0)), False)
sketch11.addGeometry(Part.LineSegment(Vector(102, 40, 0), Vector(102, 55, 0)), False)
sketch11.addGeometry(Part.LineSegment(Vector(102, 55, 0), Vector(97, 55, 0)), False)
sketch11.addGeometry(Part.LineSegment(Vector(97, 55, 0), Vector(97, 45, 0)), False)
sketch11.addConstraint(Sketcher.Constraint("Coincident", 0, 2, 1, 1))
sketch11.addConstraint(Sketcher.Constraint("Coincident", 1, 2, 2, 1))
sketch11.addConstraint(Sketcher.Constraint("Coincident", 2, 2, 3, 1))
sketch11.addConstraint(Sketcher.Constraint("Coincident", 3, 2, 4, 1))
sketch11.addConstraint(Sketcher.Constraint("Coincident", 4, 2, 5, 1))
sketch11.addConstraint(Sketcher.Constraint("Coincident", 5, 2, 0, 1))
sketch11.addConstraint(Sketcher.Constraint("Horizontal", 0))
sketch11.addConstraint(Sketcher.Constraint("Vertical", 1))
sketch11.addConstraint(Sketcher.Constraint("Horizontal", 2))
sketch11.addConstraint(Sketcher.Constraint("Vertical", 3))
sketch11.addConstraint(Sketcher.Constraint("Horizontal", 4))
sketch11.addConstraint(Sketcher.Constraint("Vertical", 5))
sketch11.addConstraint(Sketcher.Constraint("Equal", 4, 1))
sketch11.addConstraint(Sketcher.Constraint("DistanceX", 0, 2, 0, 1, Q("94 mm")))
sketch11.addConstraint(Sketcher.Constraint("DistanceX", 2, 1, 2, 2, Q("99 mm")))
sketch11.addConstraint(Sketcher.Constraint("DistanceY", 3, 1, 3, 2, Q("15 mm")))
sketch11.addConstraint(Sketcher.Constraint("DistanceX", -1, 1, 0, 2, Q("3 mm")))
sketch11.addConstraint(Sketcher.Constraint("DistanceY", -1, 1, 0, 2, Q("45 mm")))
pad4 = body.newObject("PartDesign::Pad", "Pad003")
pad4.Profile = sketch11
pad4.Length = 160

sketch12 = body.newObject("Sketcher::SketchObject", "Sketch011")
sketch12.AttachmentSupport = (doc.getObject("XY_Plane"), [""])
sketch12.MapMode = "FlatFace"
sketch12.addGeometry(Part.LineSegment(Vector(62, 27, 0), Vector(62, 17, 0)), False)
sketch12.addGeometry(Part.LineSegment(Vector(62, 17, 0), Vector(77, 17, 0)), False)
sketch12.addGeometry(Part.LineSegment(Vector(77, 17, 0), Vector(77, 27, 0)), False)
sketch12.addGeometry(Part.LineSegment(Vector(77, 27, 0), Vector(62, 27, 0)), False)
sketch12.addConstraint(Sketcher.Constraint("Coincident", 0, 2, 1, 1))
sketch12.addConstraint(Sketcher.Constraint("Coincident", 1, 2, 2, 1))
sketch12.addConstraint(Sketcher.Constraint("Coincident", 2, 2, 3, 1))
sketch12.addConstraint(Sketcher.Constraint("Coincident", 3, 2, 0, 1))
sketch12.addConstraint(Sketcher.Constraint("Vertical", 0))
sketch12.addConstraint(Sketcher.Constraint("Horizontal", 1))
sketch12.addConstraint(Sketcher.Constraint("Vertical", 2))
sketch12.addConstraint(Sketcher.Constraint("Horizontal", 3))
sketch12.addConstraint(Sketcher.Constraint("DistanceX", 1, 1, 1, 2, Q("15 mm")))
sketch12.addConstraint(Sketcher.Constraint("DistanceY", 0, 2, 0, 1, Q("10 mm")))
sketch12.addConstraint(Sketcher.Constraint("DistanceX", -1, 1, 0, 2, Q("62 mm")))
sketch12.addConstraint(Sketcher.Constraint("DistanceY", -1, 1, 0, 2, Q("17 mm")))
pocket8 = body.newObject("PartDesign::Pocket", "Pocket007")
pocket8.Profile = sketch12
pocket8.Type = "ThroughAll"

doc.recompute()
